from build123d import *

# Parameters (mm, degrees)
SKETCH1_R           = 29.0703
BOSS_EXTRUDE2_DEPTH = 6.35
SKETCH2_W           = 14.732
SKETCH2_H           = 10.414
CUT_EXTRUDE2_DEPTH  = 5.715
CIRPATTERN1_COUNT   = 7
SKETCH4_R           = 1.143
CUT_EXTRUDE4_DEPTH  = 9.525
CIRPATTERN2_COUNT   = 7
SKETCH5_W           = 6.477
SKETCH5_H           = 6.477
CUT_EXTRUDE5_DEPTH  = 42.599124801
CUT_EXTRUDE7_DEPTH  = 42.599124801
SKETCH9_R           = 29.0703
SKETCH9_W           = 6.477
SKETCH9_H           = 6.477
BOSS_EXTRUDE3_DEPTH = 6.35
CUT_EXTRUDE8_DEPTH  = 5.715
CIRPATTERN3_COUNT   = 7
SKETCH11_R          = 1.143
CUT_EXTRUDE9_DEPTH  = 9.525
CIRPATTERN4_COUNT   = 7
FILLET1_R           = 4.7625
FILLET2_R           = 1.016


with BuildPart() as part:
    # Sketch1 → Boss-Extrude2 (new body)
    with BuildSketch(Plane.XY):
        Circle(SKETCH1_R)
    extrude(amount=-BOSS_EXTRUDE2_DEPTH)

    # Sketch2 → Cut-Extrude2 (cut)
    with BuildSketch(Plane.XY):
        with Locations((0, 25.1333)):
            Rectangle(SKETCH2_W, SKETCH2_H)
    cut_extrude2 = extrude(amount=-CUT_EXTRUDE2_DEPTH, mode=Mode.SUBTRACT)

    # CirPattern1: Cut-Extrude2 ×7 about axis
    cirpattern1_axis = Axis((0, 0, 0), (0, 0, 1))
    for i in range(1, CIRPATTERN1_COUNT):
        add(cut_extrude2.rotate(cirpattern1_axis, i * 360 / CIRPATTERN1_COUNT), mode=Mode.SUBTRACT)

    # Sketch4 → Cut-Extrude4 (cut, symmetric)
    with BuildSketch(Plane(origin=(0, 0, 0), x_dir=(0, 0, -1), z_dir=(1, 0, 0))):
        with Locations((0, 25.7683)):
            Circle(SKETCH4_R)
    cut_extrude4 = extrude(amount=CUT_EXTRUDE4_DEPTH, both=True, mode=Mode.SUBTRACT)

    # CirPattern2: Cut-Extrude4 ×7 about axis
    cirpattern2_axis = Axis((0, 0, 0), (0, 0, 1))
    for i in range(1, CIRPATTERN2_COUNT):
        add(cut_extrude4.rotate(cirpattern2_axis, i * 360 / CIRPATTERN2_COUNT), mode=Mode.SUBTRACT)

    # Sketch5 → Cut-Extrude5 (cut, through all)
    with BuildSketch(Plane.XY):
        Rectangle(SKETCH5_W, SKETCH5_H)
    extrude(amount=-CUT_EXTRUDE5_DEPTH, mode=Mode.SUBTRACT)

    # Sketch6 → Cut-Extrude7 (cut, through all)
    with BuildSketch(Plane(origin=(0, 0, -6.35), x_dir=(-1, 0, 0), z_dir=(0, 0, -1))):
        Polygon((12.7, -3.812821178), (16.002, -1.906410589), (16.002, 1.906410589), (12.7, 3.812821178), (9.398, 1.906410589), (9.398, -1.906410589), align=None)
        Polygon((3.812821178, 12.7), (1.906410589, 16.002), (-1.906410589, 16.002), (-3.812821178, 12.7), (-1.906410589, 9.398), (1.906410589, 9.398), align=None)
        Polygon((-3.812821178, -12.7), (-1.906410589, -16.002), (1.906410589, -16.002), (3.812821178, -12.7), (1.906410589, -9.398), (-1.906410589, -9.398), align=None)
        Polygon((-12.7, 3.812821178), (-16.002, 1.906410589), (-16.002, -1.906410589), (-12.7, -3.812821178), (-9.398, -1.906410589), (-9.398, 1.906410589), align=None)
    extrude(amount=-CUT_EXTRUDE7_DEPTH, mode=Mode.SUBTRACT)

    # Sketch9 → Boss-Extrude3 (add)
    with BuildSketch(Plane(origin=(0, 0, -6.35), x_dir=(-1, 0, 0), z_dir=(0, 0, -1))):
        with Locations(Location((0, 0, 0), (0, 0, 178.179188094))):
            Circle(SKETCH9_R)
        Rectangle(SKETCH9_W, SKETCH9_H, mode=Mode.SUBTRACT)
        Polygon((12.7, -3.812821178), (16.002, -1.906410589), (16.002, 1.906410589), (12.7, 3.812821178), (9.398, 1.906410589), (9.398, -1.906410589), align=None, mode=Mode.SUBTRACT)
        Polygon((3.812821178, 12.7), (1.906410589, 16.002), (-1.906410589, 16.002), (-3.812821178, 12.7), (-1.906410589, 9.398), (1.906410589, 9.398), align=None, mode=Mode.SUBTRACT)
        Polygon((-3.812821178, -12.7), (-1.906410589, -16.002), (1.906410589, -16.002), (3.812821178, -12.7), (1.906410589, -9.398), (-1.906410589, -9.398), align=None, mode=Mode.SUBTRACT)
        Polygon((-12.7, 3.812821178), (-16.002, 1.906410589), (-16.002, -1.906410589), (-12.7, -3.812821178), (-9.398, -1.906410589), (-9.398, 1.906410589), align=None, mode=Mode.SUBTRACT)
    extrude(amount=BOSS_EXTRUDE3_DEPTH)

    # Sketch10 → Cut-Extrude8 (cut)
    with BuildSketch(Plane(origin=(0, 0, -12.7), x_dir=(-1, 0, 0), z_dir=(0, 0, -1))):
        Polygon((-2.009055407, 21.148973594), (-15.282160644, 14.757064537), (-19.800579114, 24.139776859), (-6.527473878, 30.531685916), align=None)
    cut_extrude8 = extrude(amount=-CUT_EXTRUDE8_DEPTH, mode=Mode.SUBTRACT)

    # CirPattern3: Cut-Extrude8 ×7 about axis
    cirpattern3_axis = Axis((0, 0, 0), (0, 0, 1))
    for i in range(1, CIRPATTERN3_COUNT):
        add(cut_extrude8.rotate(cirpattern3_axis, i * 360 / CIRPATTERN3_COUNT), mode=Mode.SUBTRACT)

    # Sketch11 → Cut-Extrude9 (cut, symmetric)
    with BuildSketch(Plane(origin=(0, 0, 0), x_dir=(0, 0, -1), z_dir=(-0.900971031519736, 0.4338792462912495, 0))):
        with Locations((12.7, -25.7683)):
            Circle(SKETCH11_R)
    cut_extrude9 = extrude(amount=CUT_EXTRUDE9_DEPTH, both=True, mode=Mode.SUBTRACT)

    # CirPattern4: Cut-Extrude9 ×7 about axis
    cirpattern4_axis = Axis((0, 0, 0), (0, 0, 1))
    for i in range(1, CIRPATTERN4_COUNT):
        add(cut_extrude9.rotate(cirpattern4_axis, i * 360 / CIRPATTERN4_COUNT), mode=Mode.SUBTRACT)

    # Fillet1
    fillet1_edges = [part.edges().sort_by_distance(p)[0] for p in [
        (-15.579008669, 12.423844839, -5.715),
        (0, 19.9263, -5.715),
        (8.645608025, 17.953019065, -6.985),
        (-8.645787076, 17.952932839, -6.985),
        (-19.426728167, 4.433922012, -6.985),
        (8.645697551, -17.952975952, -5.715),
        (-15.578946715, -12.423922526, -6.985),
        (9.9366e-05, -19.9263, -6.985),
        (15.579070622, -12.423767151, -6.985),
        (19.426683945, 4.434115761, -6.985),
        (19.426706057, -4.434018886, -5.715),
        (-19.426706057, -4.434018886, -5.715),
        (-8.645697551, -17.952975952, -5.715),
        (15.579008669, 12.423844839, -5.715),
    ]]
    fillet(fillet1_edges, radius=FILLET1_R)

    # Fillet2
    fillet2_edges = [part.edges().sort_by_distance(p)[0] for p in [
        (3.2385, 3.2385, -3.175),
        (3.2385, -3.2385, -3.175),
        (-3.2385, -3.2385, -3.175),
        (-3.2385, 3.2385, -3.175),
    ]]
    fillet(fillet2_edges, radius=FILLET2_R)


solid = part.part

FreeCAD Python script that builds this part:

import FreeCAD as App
import Part
import Sketcher
from FreeCAD import Vector
Q = App.Units.Quantity


def edges_at(feature, points):
    """Names of the edges that pass closest to the given points."""
    edges = feature.Shape.Edges
    near = lambda p: min(range(len(edges)), key=lambda i: edges[i].distToShape(Part.Vertex(*p))[0])
    return sorted({f"Edge{near(p) + 1}" for p in points})


def add_polygon(sketch, points):
    """Adds a closed chain of lines whose ends are joined by coincident constraints."""
    first, n = sketch.GeometryCount, len(points)
    for a, b in zip(points, points[1:] + points[:1]):
        sketch.addGeometry(Part.LineSegment(App.Vector(*a, 0), App.Vector(*b, 0)), False)
    for i in range(n):
        sketch.addConstraint(Sketcher.Constraint("Coincident", first + i, 2, first + (i + 1) % n, 1))

doc = App.newDocument("Part")
body = doc.addObject("PartDesign::Body", "Body")

# Sketch on XY plane
sketch1 = doc.addObject("Sketcher::SketchObject", "Sketch")
body.addObject(sketch1)
sketch1.AttachmentSupport = (doc.XY_Plane, [""])
sketch1.MapMode = "FlatFace"
sketch1.addGeometry(Part.Circle(Vector(0, 0, 0), Vector(0, 0, 1), 29), False)
sketch1.addConstraint(Sketcher.Constraint("Coincident", 0, 3, -1, 1))
sketch1.addConstraint(Sketcher.Constraint("Diameter", 0, Q("2.289 in")))
pad1 = doc.addObject("PartDesign::Pad", "Pad")
body.addObject(pad1)
pad1.Profile = sketch1
pad1.Length = Q("0.25 in")
pad1.Reversed = True

# Sketch on XY plane
sketch2 = doc.addObject("Sketcher::SketchObject", "Sketch001")
body.addObject(sketch2)
sketch2.AttachmentSupport = (doc.XY_Plane, [""])
sketch2.MapMode = "FlatFace"
add_polygon(sketch2, [(-7, 30), (-7, 20), (7, 20), (7, 30)])  # lines 0-3
sketch2.addConstraint(Sketcher.Constraint("Vertical", 0))
sketch2.addConstraint(Sketcher.Constraint("Horizontal", 1))
sketch2.addConstraint(Sketcher.Constraint("Vertical", 2))
sketch2.addConstraint(Sketcher.Constraint("Horizontal", 3))
sketch2.addConstraint(Sketcher.Constraint("DistanceX", 1, 1, 1, 2, Q("0.58 in")))
sketch2.addConstraint(Sketcher.Constraint("DistanceY", 0, 2, 0, 1, Q("0.41 in")))
sketch2.addConstraint(Sketcher.Constraint("DistanceX", 0, 2, -1, 1, Q("0.29 in")))
sketch2.addConstraint(Sketcher.Constraint("DistanceY", -1, 1, 0, 2, Q("0.7845 in")))
pocket1 = doc.addObject("PartDesign::Pocket", "Pocket")
body.addObject(pocket1)
pocket1.Profile = sketch2
pocket1.Length = Q("0.225 in")
doc.recompute()

polarpattern = doc.addObject("PartDesign::PolarPattern", "PolarPattern")
body.addObject(polarpattern)
polarpattern.Originals = [pocket1]
polarpattern.Axis = (doc.Z_Axis, [""])
polarpattern.Angle = 360
polarpattern.Occurrences = 7
body.Tip = polarpattern

# Sketch on YZ plane
sketch3 = doc.addObject("Sketcher::SketchObject", "Sketch002")
body.addObject(sketch3)
sketch3.AttachmentSupport = (doc.YZ_Plane, [""])
sketch3.MapMode = "FlatFace"
sketch3.addGeometry(Part.Circle(Vector(25.8, 0, 0), Vector(0, 0, 1), 1.1), False)
sketch3.addConstraint(Sketcher.Constraint("PointOnObject", 0, 3, -1))
sketch3.addConstraint(Sketcher.Constraint("Diameter", 0, Q("0.09 in")))
sketch3.addConstraint(Sketcher.Constraint("DistanceX", -1, 1, 0, 3, Q("1.0145 in")))
pocket2 = doc.addObject("PartDesign::Pocket", "Pocket001")
body.addObject(pocket2)
pocket2.Profile = sketch3
pocket2.Length = Q("0.75 in")
pocket2.Midplane = True
doc.recompute()

polarpattern2 = doc.addObject("PartDesign::PolarPattern", "PolarPattern001")
body.addObject(polarpattern2)
polarpattern2.Originals = [pocket2]
polarpattern2.Axis = (doc.Z_Axis, [""])
polarpattern2.Angle = 360
polarpattern2.Occurrences = 7
body.Tip = polarpattern2

# Sketch on XY plane
sketch4 = doc.addObject("Sketcher::SketchObject", "Sketch003")
body.addObject(sketch4)
sketch4.AttachmentSupport = (doc.XY_Plane, [""])
sketch4.MapMode = "FlatFace"
add_polygon(sketch4, [(-3, 3), (-3, -3), (3, -3), (3, 3)])  # lines 0-3
sketch4.addConstraint(Sketcher.Constraint("Vertical", 0))
sketch4.addConstraint(Sketcher.Constraint("Horizontal", 1))
sketch4.addConstraint(Sketcher.Constraint("Vertical", 2))
sketch4.addConstraint(Sketcher.Constraint("Horizontal", 3))
sketch4.addConstraint(Sketcher.Constraint("Symmetric", 0, 2, 2, 2, -1, 1))
sketch4.addConstraint(Sketcher.Constraint("Equal", 3, 0))
sketch4.addConstraint(Sketcher.Constraint("DistanceX", 1, 1, 1, 2, Q("0.255 in")))
pocket3 = doc.addObject("PartDesign::Pocket", "Pocket002")
body.addObject(pocket3)
pocket3.Profile = sketch4
pocket3.Type = "ThroughAll"

# Sketch on XY plane
sketch5 = doc.addObject("Sketcher::SketchObject", "Sketch004")
body.addObject(sketch5)
sketch5.AttachmentSupport = (doc.XY_Plane, [""])
sketch5.MapMode = "FlatFace"
sketch5.AttachmentOffset = App.Placement(Vector(0, 0, -0.25 * 25.4), App.Rotation())
add_polygon(sketch5, [(-12.7, -3.8), (-16, -1.9), (-16, 1.9), (-12.7, 3.8), (-9.4, 1.9), (-9.4, -1.9)])  # lines 0-5
add_polygon(sketch5, [(-3.8, 12.7), (-1.9, 16), (1.9, 16), (3.8, 12.7), (1.9, 9.4), (-1.9, 9.4)])  # lines 6-11
add_polygon(sketch5, [(3.8, -12.7), (1.9, -16), (-1.9, -16), (-3.8, -12.7), (-1.9, -9.4), (1.9, -9.4)])  # lines 12-17
add_polygon(sketch5, [(12.7, 3.8), (16, 1.9), (16, -1.9), (12.7, -3.8), (9.4, -1.9), (9.4, 1.9)])  # lines 18-23
sketch5.addConstraint(Sketcher.Constraint("Vertical", 1))
sketch5.addConstraint(Sketcher.Constraint("Vertical", 4))
sketch5.addConstraint(Sketcher.Constraint("Horizontal", 7))
sketch5.addConstraint(Sketcher.Constraint("Horizontal", 10))
sketch5.addConstraint(Sketcher.Constraint("Horizontal", 13))
sketch5.addConstraint(Sketcher.Constraint("Horizontal", 16))
sketch5.addConstraint(Sketcher.Constraint("Vertical", 19))
sketch5.addConstraint(Sketcher.Constraint("Vertical", 22))
sketch5.addConstraint(Sketcher.Constraint("Symmetric", 6, 2, 12, 2, -1, 1))
sketch5.addConstraint(Sketcher.Constraint("Symmetric", 8, 2, 14, 2, -1, 1))
sketch5.addConstraint(Sketcher.Constraint("Symmetric", 9, 2, 15, 2, -1, 1))
sketch5.addConstraint(Sketcher.Constraint("Symmetric", 11, 2, 17, 2, -1, 1))
sketch5.addConstraint(Sketcher.Constraint("Symmetric", 0, 2, 18, 2, -1, 1))
sketch5.addConstraint(Sketcher.Constraint("Symmetric", 2, 2, 20, 2, -1, 1))
sketch5.addConstraint(Sketcher.Constraint("Symmetric", 3, 2, 21, 2, -1, 1))
sketch5.addConstraint(Sketcher.Constraint("Symmetric", 5, 2, 23, 2, -1, 1))
sketch5.addConstraint(Sketcher.Constraint("Symmetric", 8, 2, 11, 2, -2))
sketch5.addConstraint(Sketcher.Constraint("Symmetric", 5, 2, 20, 2, -2))
sketch5.addConstraint(Sketcher.Constraint("Parallel", 0, 3))
sketch5.addConstraint(Sketcher.Constraint("Parallel", 2, 5))
sketch5.addConstraint(Sketcher.Constraint("Perpendicular", 3, 6))
sketch5.addConstraint(Sketcher.Constraint("Perpendicular", 5, 8))
sketch5.addConstraint(Sketcher.Constraint("Parallel", 6, 9))
sketch5.addConstraint(Sketcher.Constraint("Parallel", 8, 11))
sketch5.addConstraint(Sketcher.Constraint("Parallel", 11, 14))
sketch5.addConstraint(Sketcher.Constraint("Parallel", 14, 17))
sketch5.addConstraint(Sketcher.Constraint("Perpendicular", 17, 20))
sketch5.addConstraint(Sketcher.Constraint("Parallel", 20, 23))
sketch5.addConstraint(Sketcher.Constraint("Horizontal", 1, 2, 3, 2))
sketch5.addConstraint(Sketcher.Constraint("Horizontal", 0, 2, 4, 2))
sketch5.addConstraint(Sketcher.Constraint("Vertical", 7, 2, 9, 2))
sketch5.addConstraint(Sketcher.Constraint("Equal", 16, 1))
sketch5.addConstraint(Sketcher.Constraint("Equal", 5, 6))
sketch5.addConstraint(Sketcher.Constraint("Angle", 0, Q("150 deg")))
sketch5.addConstraint(Sketcher.Constraint("DistanceX", 2, 2, -1, 1, Q("0.5 in")))
sketch5.addConstraint(Sketcher.Constraint("DistanceY", -1, 1, 8, 2, Q("0.5 in")))
sketch5.addConstraint(Sketcher.Constraint("DistanceX", 0, 2, -1, 1, Q("0.63 in")))
sketch5.addConstraint(Sketcher.Constraint("DistanceX", 7, 1, 7, 2, Q("3.812821 mm")))
pocket4 = doc.addObject("PartDesign::Pocket", "Pocket003")
body.addObject(pocket4)
pocket4.Profile = sketch5
pocket4.Type = "ThroughAll"
pocket4.Reversed = True

# Sketch on XY plane
sketch6 = doc.addObject("Sketcher::SketchObject", "Sketch005")
body.addObject(sketch6)
sketch6.AttachmentSupport = (doc.XY_Plane, [""])
sketch6.MapMode = "FlatFace"
sketch6.AttachmentOffset = App.Placement(Vector(0, 0, -0.25 * 25.4), App.Rotation())
sketch6.addGeometry(Part.Circle(Vector(0, 0, 0), Vector(0, 0, 1), 29.1), False)  # 0
add_polygon(sketch6, [(-16, -1.9), (-12.7, -3.8), (-9.4, -1.9), (-9.4, 1.9), (-12.7, 3.8), (-16, 1.9)])  # lines 1-6
add_polygon(sketch6, [(-1.9, 16), (-3.8, 12.7), (-1.9, 9.4), (1.9, 9.4), (3.8, 12.7), (1.9, 16)])  # lines 7-12
add_polygon(sketch6, [(1.9, -16), (3.8, -12.7), (1.9, -9.4), (-1.9, -9.4), (-3.8, -12.7), (-1.9, -16)])  # lines 13-18
add_polygon(sketch6, [(-3.2, -3.2), (3.2, -3.2), (3.2, 3.2), (-3.2, 3.2)])  # lines 19-22
add_polygon(sketch6, [(16, 1.9), (12.7, 3.8), (9.4, 1.9), (9.4, -1.9), (12.7, -3.8), (16, -1.9)])  # lines 23-28
sketch6.addConstraint(Sketcher.Constraint("Vertical", 3))
sketch6.addConstraint(Sketcher.Constraint("Vertical", 6))
sketch6.addConstraint(Sketcher.Constraint("Horizontal", 9))
sketch6.addConstraint(Sketcher.Constraint("Horizontal", 12))
sketch6.addConstraint(Sketcher.Constraint("Horizontal", 15))
sketch6.addConstraint(Sketcher.Constraint("Horizontal", 18))
sketch6.addConstraint(Sketcher.Constraint("Horizontal", 19))
sketch6.addConstraint(Sketcher.Constraint("Vertical", 20))
sketch6.addConstraint(Sketcher.Constraint("Horizontal", 21))
sketch6.addConstraint(Sketcher.Constraint("Vertical", 22))
sketch6.addConstraint(Sketcher.Constraint("Vertical", 25))
sketch6.addConstraint(Sketcher.Constraint("Vertical", 28))
sketch6.addConstraint(Sketcher.Constraint("Coincident", 0, 3, -1, 1))
sketch6.addConstraint(Sketcher.Constraint("Symmetric", 7, 2, 13, 2, -1, 1))
sketch6.addConstraint(Sketcher.Constraint("Symmetric", 8, 2, 14, 2, -1, 1))
sketch6.addConstraint(Sketcher.Constraint("Symmetric", 10, 2, 16, 2, -1, 1))
sketch6.addConstraint(Sketcher.Constraint("Symmetric", 11, 2, 17, 2, -1, 1))
sketch6.addConstraint(Sketcher.Constraint("Symmetric", 19, 2, 21, 2, -1, 1))
sketch6.addConstraint(Sketcher.Constraint("Symmetric", 1, 2, 23, 2, -1, 1))
sketch6.addConstraint(Sketcher.Constraint("Symmetric", 2, 2, 24, 2, -1, 1))
sketch6.addConstraint(Sketcher.Constraint("Symmetric", 4, 2, 26, 2, -1, 1))
sketch6.addConstraint(Sketcher.Constraint("Symmetric", 5, 2, 27, 2, -1, 1))
sketch6.addConstraint(Sketcher.Constraint("Symmetric", 7, 2, 10, 2, -2))
sketch6.addConstraint(Sketcher.Constraint("Symmetric", 4, 2, 23, 2, -2))
sketch6.addConstraint(Sketcher.Constraint("Parallel", 1, 4))
sketch6.addConstraint(Sketcher.Constraint("Parallel", 2, 5))
sketch6.addConstraint(Sketcher.Constraint("Perpendicular", 4, 7))
sketch6.addConstraint(Sketcher.Constraint("Perpendicular", 5, 8))
sketch6.addConstraint(Sketcher.Constraint("Parallel", 7, 10))
sketch6.addConstraint(Sketcher.Constraint("Parallel", 8, 11))
sketch6.addConstraint(Sketcher.Constraint("Parallel", 10, 13))
sketch6.addConstraint(Sketcher.Constraint("Parallel", 13, 16))
sketch6.addConstraint(Sketcher.Constraint("Perpendicular", 16, 23))
sketch6.addConstraint(Sketcher.Constraint("Parallel", 23, 26))
sketch6.addConstraint(Sketcher.Constraint("Horizontal", 3, 2, 5, 2))
sketch6.addConstraint(Sketcher.Constraint("Horizontal", 2, 2, 6, 2))
sketch6.addConstraint(Sketcher.Constraint("Vertical", 9, 2, 11, 2))
sketch6.addConstraint(Sketcher.Constraint("Equal", 18, 3))
sketch6.addConstraint(Sketcher.Constraint("Equal", 21, 20))
sketch6.addConstraint(Sketcher.Constraint("Equal", 5, 7))
sketch6.addConstraint(Sketcher.Constraint("Diameter", 0, Q("2.289 in")))
sketch6.addConstraint(Sketcher.Constraint("Angle", 1, Q("-30 deg")))
sketch6.addConstraint(Sketcher.Constraint("DistanceX", 1, 2, -1, 1, Q("0.5 in")))
sketch6.addConstraint(Sketcher.Constraint("DistanceY", -1, 1, 7, 2, Q("0.5 in")))
sketch6.addConstraint(Sketcher.Constraint("DistanceX", 19, 1, 19, 2, Q("0.255 in")))
sketch6.addConstraint(Sketcher.Constraint("DistanceX", 2, 2, -1, 1, Q("0.37 in")))
sketch6.addConstraint(Sketcher.Constraint("DistanceX", 9, 1, 9, 2, Q("3.812821 mm")))
pad2 = doc.addObject("PartDesign::Pad", "Pad001")
body.addObject(pad2)
pad2.Profile = sketch6
pad2.Length = Q("0.25 in")
pad2.Reversed = True

# Sketch on XY plane
sketch7 = doc.addObject("Sketcher::SketchObject", "Sketch006")
body.addObject(sketch7)
sketch7.AttachmentSupport = (doc.XY_Plane, [""])
sketch7.MapMode = "FlatFace"
sketch7.AttachmentOffset = App.Placement(Vector(0, 0, -0.5 * 25.4), App.Rotation())
add_polygon(sketch7, [(15, 15), (2, 21), (7, 31), (20, 24)])  # lines 0-3
sketch7.addConstraint(Sketcher.Constraint("Perpendicular", 0, 1))
sketch7.addConstraint(Sketcher.Constraint("Perpendicular", 1, 2))
sketch7.addConstraint(Sketcher.Constraint("Perpendicular", 2, 3))
sketch7.addConstraint(Sketcher.Constraint("Distance", 0, Q("0.58 in")))
sketch7.addConstraint(Sketcher.Constraint("Distance", 1, Q("0.41 in")))
sketch7.addConstraint(Sketcher.Constraint("DistanceX", -1, 1, 2, 2, Q("19.800579 mm")))
sketch7.addConstraint(Sketcher.Constraint("DistanceX", -1, 1, 3, 2, Q("15.282161 mm")))
sketch7.addConstraint(Sketcher.Constraint("DistanceY", -1, 1, 0, 2, Q("21.148974 mm")))
pocket5 = doc.addObject("PartDesign::Pocket", "Pocket004")
body.addObject(pocket5)
pocket5.Profile = sketch7
pocket5.Length = Q("0.225 in")
pocket5.Reversed = True
doc.recompute()

polarpattern3 = doc.addObject("PartDesign::PolarPattern", "PolarPattern002")
body.addObject(polarpattern3)
polarpattern3.Originals = [pocket5]
polarpattern3.Axis = (doc.Z_Axis, [""])
polarpattern3.Angle = 360
polarpattern3.Occurrences = 7
body.Tip = polarpattern3

# Sketch on an angled plane
sketch8 = doc.addObject("Sketcher::SketchObject", "Sketch007")
body.addObject(sketch8)
sketch8.Placement = App.Placement(Vector(0, 0, 0), App.Rotation(Vector(0, 0, -1), Vector(-0.433879246, -0.900971032, 0), Vector(-0.900971032, 0.433879246, 0), "ZXY"))
sketch8.addGeometry(Part.Circle(Vector(12.7, -25.8, 0), Vector(0, 0, 1), 1.1), False)
sketch8.addConstraint(Sketcher.Constraint("Diameter", 0, Q("0.09 in")))
sketch8.addConstraint(Sketcher.Constraint("DistanceX", -1, 1, 0, 3, Q("0.5 in")))
sketch8.addConstraint(Sketcher.Constraint("DistanceY", 0, 3, -1, 1, Q("1.0145 in")))
pocket6 = doc.addObject("PartDesign::Pocket", "Pocket005")
body.addObject(pocket6)
pocket6.Profile = sketch8
pocket6.Length = Q("0.75 in")
pocket6.Midplane = True
doc.recompute()

polarpattern4 = doc.addObject("PartDesign::PolarPattern", "PolarPattern003")
body.addObject(polarpattern4)
polarpattern4.Originals = [pocket6]
polarpattern4.Axis = (doc.Z_Axis, [""])
polarpattern4.Angle = 360
polarpattern4.Occurrences = 7
body.Tip = polarpattern4
doc.recompute()

fillet = doc.addObject("PartDesign::Fillet", "Fillet")
body.addObject(fillet)
fillet.Base = (polarpattern4, edges_at(polarpattern4, [
    (-15.579, 12.424, -5.715),
    (0, 19.926, -5.715),
    (8.646, 17.953, -6.985),
    (-8.646, 17.953, -6.985),
    (-19.427, 4.434, -6.985),
    (8.646, -17.953, -5.715),
    (-15.579, -12.424, -6.985),
    (0, -19.926, -6.985),
    (15.579, -12.424, -6.985),
    (19.427, 4.434, -6.985),
    (19.427, -4.434, -5.715),
    (-19.427, -4.434, -5.715),
    (-8.646, -17.953, -5.715),
    (15.579, 12.424, -5.715),
]))
fillet.Radius = Q("0.1875 in")
doc.recompute()

fillet2 = doc.addObject("PartDesign::Fillet", "Fillet001")
body.addObject(fillet2)
fillet2.Base = (fillet, edges_at(fillet, [
    (3.239, 3.239, -3.175),
    (3.239, -3.239, -3.175),
    (-3.239, -3.239, -3.175),
    (-3.239, 3.239, -3.175),
]))
fillet2.Radius = Q("0.04 in")

doc.recompute()
